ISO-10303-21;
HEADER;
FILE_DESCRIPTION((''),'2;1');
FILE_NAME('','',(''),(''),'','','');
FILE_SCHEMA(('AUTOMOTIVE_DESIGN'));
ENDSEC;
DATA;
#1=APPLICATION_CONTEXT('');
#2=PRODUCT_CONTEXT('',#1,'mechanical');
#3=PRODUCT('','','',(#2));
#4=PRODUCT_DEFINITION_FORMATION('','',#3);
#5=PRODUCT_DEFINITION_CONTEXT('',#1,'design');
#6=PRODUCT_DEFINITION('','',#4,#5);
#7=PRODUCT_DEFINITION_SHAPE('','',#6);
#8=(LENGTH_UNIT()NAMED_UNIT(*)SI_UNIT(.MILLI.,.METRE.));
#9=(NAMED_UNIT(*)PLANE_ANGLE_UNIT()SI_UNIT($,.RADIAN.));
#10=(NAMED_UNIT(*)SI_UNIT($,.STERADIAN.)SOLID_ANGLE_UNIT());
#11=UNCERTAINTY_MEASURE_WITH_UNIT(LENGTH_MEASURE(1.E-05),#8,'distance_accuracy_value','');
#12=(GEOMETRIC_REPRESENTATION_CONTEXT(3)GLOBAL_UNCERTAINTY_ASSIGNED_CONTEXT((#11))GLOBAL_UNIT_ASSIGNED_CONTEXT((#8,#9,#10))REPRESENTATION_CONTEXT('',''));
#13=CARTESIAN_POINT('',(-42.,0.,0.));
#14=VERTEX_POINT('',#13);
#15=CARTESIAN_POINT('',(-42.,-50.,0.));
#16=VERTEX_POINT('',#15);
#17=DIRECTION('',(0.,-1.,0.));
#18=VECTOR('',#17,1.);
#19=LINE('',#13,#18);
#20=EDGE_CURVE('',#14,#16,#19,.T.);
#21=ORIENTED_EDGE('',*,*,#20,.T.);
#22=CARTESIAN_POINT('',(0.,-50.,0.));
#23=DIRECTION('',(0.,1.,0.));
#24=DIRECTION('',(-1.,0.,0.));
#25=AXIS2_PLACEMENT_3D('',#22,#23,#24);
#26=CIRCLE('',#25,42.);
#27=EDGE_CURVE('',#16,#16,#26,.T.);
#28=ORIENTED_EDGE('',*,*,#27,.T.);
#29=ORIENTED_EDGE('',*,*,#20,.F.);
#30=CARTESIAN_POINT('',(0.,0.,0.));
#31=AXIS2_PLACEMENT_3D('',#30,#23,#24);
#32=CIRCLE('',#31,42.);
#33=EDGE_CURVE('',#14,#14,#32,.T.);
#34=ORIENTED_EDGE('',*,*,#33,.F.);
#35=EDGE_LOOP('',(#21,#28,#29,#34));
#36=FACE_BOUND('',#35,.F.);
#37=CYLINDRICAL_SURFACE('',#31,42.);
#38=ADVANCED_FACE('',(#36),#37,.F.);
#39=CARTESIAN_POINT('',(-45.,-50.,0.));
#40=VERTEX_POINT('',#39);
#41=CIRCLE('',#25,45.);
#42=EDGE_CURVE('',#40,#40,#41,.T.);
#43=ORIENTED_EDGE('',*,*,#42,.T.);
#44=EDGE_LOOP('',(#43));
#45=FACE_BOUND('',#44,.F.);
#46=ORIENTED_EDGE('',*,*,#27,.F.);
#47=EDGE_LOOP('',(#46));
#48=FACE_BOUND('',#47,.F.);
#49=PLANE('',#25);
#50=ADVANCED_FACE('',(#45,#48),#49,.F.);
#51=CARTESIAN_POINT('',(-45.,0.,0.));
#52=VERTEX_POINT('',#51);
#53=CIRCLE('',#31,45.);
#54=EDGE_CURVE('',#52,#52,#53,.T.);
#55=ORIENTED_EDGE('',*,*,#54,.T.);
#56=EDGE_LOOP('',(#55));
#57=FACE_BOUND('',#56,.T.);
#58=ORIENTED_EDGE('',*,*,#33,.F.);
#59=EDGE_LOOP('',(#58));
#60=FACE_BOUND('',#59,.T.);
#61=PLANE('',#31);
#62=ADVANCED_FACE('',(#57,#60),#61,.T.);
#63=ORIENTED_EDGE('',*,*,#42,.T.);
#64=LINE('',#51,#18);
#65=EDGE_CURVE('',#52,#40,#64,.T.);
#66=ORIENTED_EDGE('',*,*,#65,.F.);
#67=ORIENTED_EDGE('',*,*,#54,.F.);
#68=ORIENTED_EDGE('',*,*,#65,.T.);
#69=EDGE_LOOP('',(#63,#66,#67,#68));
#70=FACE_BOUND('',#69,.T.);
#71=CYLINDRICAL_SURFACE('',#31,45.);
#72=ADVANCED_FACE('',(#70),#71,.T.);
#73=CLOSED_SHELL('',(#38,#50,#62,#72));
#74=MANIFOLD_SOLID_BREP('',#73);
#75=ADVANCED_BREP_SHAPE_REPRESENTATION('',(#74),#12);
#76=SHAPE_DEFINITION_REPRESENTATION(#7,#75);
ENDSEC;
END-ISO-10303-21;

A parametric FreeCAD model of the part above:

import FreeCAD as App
import Part
import Sketcher
from FreeCAD import Vector

doc = App.newDocument("Part")
body = doc.addObject("PartDesign::Body", "Body")

# Sketch on XZ plane
sketch1 = body.newObject("Sketcher::SketchObject", "Sketch")
sketch1.AttachmentSupport = (doc.getObject("XZ_Plane"), [""])
sketch1.MapMode = "FlatFace"
sketch1.addGeometry(Part.Circle(Vector(0, 0, 0), Vector(0, 0, 1), 45), False)
sketch1.addGeometry(Part.Circle(Vector(0, 0, 0), Vector(0, 0, 1), 42), False)
sketch1.addConstraint(Sketcher.Constraint("Coincident", 0, 3, -1, 1))
sketch1.addConstraint(Sketcher.Constraint("Coincident", 1, 3, -1, 1))
sketch1.addConstraint(Sketcher.Constraint("Diameter", 0, 90.0))
sketch1.addConstraint(Sketcher.Constraint("Diameter", 1, 84.0))
pad1 = body.newObject("PartDesign::Pad", "Pad")
pad1.Profile = sketch1
pad1.Length = 50

doc.recompute()
